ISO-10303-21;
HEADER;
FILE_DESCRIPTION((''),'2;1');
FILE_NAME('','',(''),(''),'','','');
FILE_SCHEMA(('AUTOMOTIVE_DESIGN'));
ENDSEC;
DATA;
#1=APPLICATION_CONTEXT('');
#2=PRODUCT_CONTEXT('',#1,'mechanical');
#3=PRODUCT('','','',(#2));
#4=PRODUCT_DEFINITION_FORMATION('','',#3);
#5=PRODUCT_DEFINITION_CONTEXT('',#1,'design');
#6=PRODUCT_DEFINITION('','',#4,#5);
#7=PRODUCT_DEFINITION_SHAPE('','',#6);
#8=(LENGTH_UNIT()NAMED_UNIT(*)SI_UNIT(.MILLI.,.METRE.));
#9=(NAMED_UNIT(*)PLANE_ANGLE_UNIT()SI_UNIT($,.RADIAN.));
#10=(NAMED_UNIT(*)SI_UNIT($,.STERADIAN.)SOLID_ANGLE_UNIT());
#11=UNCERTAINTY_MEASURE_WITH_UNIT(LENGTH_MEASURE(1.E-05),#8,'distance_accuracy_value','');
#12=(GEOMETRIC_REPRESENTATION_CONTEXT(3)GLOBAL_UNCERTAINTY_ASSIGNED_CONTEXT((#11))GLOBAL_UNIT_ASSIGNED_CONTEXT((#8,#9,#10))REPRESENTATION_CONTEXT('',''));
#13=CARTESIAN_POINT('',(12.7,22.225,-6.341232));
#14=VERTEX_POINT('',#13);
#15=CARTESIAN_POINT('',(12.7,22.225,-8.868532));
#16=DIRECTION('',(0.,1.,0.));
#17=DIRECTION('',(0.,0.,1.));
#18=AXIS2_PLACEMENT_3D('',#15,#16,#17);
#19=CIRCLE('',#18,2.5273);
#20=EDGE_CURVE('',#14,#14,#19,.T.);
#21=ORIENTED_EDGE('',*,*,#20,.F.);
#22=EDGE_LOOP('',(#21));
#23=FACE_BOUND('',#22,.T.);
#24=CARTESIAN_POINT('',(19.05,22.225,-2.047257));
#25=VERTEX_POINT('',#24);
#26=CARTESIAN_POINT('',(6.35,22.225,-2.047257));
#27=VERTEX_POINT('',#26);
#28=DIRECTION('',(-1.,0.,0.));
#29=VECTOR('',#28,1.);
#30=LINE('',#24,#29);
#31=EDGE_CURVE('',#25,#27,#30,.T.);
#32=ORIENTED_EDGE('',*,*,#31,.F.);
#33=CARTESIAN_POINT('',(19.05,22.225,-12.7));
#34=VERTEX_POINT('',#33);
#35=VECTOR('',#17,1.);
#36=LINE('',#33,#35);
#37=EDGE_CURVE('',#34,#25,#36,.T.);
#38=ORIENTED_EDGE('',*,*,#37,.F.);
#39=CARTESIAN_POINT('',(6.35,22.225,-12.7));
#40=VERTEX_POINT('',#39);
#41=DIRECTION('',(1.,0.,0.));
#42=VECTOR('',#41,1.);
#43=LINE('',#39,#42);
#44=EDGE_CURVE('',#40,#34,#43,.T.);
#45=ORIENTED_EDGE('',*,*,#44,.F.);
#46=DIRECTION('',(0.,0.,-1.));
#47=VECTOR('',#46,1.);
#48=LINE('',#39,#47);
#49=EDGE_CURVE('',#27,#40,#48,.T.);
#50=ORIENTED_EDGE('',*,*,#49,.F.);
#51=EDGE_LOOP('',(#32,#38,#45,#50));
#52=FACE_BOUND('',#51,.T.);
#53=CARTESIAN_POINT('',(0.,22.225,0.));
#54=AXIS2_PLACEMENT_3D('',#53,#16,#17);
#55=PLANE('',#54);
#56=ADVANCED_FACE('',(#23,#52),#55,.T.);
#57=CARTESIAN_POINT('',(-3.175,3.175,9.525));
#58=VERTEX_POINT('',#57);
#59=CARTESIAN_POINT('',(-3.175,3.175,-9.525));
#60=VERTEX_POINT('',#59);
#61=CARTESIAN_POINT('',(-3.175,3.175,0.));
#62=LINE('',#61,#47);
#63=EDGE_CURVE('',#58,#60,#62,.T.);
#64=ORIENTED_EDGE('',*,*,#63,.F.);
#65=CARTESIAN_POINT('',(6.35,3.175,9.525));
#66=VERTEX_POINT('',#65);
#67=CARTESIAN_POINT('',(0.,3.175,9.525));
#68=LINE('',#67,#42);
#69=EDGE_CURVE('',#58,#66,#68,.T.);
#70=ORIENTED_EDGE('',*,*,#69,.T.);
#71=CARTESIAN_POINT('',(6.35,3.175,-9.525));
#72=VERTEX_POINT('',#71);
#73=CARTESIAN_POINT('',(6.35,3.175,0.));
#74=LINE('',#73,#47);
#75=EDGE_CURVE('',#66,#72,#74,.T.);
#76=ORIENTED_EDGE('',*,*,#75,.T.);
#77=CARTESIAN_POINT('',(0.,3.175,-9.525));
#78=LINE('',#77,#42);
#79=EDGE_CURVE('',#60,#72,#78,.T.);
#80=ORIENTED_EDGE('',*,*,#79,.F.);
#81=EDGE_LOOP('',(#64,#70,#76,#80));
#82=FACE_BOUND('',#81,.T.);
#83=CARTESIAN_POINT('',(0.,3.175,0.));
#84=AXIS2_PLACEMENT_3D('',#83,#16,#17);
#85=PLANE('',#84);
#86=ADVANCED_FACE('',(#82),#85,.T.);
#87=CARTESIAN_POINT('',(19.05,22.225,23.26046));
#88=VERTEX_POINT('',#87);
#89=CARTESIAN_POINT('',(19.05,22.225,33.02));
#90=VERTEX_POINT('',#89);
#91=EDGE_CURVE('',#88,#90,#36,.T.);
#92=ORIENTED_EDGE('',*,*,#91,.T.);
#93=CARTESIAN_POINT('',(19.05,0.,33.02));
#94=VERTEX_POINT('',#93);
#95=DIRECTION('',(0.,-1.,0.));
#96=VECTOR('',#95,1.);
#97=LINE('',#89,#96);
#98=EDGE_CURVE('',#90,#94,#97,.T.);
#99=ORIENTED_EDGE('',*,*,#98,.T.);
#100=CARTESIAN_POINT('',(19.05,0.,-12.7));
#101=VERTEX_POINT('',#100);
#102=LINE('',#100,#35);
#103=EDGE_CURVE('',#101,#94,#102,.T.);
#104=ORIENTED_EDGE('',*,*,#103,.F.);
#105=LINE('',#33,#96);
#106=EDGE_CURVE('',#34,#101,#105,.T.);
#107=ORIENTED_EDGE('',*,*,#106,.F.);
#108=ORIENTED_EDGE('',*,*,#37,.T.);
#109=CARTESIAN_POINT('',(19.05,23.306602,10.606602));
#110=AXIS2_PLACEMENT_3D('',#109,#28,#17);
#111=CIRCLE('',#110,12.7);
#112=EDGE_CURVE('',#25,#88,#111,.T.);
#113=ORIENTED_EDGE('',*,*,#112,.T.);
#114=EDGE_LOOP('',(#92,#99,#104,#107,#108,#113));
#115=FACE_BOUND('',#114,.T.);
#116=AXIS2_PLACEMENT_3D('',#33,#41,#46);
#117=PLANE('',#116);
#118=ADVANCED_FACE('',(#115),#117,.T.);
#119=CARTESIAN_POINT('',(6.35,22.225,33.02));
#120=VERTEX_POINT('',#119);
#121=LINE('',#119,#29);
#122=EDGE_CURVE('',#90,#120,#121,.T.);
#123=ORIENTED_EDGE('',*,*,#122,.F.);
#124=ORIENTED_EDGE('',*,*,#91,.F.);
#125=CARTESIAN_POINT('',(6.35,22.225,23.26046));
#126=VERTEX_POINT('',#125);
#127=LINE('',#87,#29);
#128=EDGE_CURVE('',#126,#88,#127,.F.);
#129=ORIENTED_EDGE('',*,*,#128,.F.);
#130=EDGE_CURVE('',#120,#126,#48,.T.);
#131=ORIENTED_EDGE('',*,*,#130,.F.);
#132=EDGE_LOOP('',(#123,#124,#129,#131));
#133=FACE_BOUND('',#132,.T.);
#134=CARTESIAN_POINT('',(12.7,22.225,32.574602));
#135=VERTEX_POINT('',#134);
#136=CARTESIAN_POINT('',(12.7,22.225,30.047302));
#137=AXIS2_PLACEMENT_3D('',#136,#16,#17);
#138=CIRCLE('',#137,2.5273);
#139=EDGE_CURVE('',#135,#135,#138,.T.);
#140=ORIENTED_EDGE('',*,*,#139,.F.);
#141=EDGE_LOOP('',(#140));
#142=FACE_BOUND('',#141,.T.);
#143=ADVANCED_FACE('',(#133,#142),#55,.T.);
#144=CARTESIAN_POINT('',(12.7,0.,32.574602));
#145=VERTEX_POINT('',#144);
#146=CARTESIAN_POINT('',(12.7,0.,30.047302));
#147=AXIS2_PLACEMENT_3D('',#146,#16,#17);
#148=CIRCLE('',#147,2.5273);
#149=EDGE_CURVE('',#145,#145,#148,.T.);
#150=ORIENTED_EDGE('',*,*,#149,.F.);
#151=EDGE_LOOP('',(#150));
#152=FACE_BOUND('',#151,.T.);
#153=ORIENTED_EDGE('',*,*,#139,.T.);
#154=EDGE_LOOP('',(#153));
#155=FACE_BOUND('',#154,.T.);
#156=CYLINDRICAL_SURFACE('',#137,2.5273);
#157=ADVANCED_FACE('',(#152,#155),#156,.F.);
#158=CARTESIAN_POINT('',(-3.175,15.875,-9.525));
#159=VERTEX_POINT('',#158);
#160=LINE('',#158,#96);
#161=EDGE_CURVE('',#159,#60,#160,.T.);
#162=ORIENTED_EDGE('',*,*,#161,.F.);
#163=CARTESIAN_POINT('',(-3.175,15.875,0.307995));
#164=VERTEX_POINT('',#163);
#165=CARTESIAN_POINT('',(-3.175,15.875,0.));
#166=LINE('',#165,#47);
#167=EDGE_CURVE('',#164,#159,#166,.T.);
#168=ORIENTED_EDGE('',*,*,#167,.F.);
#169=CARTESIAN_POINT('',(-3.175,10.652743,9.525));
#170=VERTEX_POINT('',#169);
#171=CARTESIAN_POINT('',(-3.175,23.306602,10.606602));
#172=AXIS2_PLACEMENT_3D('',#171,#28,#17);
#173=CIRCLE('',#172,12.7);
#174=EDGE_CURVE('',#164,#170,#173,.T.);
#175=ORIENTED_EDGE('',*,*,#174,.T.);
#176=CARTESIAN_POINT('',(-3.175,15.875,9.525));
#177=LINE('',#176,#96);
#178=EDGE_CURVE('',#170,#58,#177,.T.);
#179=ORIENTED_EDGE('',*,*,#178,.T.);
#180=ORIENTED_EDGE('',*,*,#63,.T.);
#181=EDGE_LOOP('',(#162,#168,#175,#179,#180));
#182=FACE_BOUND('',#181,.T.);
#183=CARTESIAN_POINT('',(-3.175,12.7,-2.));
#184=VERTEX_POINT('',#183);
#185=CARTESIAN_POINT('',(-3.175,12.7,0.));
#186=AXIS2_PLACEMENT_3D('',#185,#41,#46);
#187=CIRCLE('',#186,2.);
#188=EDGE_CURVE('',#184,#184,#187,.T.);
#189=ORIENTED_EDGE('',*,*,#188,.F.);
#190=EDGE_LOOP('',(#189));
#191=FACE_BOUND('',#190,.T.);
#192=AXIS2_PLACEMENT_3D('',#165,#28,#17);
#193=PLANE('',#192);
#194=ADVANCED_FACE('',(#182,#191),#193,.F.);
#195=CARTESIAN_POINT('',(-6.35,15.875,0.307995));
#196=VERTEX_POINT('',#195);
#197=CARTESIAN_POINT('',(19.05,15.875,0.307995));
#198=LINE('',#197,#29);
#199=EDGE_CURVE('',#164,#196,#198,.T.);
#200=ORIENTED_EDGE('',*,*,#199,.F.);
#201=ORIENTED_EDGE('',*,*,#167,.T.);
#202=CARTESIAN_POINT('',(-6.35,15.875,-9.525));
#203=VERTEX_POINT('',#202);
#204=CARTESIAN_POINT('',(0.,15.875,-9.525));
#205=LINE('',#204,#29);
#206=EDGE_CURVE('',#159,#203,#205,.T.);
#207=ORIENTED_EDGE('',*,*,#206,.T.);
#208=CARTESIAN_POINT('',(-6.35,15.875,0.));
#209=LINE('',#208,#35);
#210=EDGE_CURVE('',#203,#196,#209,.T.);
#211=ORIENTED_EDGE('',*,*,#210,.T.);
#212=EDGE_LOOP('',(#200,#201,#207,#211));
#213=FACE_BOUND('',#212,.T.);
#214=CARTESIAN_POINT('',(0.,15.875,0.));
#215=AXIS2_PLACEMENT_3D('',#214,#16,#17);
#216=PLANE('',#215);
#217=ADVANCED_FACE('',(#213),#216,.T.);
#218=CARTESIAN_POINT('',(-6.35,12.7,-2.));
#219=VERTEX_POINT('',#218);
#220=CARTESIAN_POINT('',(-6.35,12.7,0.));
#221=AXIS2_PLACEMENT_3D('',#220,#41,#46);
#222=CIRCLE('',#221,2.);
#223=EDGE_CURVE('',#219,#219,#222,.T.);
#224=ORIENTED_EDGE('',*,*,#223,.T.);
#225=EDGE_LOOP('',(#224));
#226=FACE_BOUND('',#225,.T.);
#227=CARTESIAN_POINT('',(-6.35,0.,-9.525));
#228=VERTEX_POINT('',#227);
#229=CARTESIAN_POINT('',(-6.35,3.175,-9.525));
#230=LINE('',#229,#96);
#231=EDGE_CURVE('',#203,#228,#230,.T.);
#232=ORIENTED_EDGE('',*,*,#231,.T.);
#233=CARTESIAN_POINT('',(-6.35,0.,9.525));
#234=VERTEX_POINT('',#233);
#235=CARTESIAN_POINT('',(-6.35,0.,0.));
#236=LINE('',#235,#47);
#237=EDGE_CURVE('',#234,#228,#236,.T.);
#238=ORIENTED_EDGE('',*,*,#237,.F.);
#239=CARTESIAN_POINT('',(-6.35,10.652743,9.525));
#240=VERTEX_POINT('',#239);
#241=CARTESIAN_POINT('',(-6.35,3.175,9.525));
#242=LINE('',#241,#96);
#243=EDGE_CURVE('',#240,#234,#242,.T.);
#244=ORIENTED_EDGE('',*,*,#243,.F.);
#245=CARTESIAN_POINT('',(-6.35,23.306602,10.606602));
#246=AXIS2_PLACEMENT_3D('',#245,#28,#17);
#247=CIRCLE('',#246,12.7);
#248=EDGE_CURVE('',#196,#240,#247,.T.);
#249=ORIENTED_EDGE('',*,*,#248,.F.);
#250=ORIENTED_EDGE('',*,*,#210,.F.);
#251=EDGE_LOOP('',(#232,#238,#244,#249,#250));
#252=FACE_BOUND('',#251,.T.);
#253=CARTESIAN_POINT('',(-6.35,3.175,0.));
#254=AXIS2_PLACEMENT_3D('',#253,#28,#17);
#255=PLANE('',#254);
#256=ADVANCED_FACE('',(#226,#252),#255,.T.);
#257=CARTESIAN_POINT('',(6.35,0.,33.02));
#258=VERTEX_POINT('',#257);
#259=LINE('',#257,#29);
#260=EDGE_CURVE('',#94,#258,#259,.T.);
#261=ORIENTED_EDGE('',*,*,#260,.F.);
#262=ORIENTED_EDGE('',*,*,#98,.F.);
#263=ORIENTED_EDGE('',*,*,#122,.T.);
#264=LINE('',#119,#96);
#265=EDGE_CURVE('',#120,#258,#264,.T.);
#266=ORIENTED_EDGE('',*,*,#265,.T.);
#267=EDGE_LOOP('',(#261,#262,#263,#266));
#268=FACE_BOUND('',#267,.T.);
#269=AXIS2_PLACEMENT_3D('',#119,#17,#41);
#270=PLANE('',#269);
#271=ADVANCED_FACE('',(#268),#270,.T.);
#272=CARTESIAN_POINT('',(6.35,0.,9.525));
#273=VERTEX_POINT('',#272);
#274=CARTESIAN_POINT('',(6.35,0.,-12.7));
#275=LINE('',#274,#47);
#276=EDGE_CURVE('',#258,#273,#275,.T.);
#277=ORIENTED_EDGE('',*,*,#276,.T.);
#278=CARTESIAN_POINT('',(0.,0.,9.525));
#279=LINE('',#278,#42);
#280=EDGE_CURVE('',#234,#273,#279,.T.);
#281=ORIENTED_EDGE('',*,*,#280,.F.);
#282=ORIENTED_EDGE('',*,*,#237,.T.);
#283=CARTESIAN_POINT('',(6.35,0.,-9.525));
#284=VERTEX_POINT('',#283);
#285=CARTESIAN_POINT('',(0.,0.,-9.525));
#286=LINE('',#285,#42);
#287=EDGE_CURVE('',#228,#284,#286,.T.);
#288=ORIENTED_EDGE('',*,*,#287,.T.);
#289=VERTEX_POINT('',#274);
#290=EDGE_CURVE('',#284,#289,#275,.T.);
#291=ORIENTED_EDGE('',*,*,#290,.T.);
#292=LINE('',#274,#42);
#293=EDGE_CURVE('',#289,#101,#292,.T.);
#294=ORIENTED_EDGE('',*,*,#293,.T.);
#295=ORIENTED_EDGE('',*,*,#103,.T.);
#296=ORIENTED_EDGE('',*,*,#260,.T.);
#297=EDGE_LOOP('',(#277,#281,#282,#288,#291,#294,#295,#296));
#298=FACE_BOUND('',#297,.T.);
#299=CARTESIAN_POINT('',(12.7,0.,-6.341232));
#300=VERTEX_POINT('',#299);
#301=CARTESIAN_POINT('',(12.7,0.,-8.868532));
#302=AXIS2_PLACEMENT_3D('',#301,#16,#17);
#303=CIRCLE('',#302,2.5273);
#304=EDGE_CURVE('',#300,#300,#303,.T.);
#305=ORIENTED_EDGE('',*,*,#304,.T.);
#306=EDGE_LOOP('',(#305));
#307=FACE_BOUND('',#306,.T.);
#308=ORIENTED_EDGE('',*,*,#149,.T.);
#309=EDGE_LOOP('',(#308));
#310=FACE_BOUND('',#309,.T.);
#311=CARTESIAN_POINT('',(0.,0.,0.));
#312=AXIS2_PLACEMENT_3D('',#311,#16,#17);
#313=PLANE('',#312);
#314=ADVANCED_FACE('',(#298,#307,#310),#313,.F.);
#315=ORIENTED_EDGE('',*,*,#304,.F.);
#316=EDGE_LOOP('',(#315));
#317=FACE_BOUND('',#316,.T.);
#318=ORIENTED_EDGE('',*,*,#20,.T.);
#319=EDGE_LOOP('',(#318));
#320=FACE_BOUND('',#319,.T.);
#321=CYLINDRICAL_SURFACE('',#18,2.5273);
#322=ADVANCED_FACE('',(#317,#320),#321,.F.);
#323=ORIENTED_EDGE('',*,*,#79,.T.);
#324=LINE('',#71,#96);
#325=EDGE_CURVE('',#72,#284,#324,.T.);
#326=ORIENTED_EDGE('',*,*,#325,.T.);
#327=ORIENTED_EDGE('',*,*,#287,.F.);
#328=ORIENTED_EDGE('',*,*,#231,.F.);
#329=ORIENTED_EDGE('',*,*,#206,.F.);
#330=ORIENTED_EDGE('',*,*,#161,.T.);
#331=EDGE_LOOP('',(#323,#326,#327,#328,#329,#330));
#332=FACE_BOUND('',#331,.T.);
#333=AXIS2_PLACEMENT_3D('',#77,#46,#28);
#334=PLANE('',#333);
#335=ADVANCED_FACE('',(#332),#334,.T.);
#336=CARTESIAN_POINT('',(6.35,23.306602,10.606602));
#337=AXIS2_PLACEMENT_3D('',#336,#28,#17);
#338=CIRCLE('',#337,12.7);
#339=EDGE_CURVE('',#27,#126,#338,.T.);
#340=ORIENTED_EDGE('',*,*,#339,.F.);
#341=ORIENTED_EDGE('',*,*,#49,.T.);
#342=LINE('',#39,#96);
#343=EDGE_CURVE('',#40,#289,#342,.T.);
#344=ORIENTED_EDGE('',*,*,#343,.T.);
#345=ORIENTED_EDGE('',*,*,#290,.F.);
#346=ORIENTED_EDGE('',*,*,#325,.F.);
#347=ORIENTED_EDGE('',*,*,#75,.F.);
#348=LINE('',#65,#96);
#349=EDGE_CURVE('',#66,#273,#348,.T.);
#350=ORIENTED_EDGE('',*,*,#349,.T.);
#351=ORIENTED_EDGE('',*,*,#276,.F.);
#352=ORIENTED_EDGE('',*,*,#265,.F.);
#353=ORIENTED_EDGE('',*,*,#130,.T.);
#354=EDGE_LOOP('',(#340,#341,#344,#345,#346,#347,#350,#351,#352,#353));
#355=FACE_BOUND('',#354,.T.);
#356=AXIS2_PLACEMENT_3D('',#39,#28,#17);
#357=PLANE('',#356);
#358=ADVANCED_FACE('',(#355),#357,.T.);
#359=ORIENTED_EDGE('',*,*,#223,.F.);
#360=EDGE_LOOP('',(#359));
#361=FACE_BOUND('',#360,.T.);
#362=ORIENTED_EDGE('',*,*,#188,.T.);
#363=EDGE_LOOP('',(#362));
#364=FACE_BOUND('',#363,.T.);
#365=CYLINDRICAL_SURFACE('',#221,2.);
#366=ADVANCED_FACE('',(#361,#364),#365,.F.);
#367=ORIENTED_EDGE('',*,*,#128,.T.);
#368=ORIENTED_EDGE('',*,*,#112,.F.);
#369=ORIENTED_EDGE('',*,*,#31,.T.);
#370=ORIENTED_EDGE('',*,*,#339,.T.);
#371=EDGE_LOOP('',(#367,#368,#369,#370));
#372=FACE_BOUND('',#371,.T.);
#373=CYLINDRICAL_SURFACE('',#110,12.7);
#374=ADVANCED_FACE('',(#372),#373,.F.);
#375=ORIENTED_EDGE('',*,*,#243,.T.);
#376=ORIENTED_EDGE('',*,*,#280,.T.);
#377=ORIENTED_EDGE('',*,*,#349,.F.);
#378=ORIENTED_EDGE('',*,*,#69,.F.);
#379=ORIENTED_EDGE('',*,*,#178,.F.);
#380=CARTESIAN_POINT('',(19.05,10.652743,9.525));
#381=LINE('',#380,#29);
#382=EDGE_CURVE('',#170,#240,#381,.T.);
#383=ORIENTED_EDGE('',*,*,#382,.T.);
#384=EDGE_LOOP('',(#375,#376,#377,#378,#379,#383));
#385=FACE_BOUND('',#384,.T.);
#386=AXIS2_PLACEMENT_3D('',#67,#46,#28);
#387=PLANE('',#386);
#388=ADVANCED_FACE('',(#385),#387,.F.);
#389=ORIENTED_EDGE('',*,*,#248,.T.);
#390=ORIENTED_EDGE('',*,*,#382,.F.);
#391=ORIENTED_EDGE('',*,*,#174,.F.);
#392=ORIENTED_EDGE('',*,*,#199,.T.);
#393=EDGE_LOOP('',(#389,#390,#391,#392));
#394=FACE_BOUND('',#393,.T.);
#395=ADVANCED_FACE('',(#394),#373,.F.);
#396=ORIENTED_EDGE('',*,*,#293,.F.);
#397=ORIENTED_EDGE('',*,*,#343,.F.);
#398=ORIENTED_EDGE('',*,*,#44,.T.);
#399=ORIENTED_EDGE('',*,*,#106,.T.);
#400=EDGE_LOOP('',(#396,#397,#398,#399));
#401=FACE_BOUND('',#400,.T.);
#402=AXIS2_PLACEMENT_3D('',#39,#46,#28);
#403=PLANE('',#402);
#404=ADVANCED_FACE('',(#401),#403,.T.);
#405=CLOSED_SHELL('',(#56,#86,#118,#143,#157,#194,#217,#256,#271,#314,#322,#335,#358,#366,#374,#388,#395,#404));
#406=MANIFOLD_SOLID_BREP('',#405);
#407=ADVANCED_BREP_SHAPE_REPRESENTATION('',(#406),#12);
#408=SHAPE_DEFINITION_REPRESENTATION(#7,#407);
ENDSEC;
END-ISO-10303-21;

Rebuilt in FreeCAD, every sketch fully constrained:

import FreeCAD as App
import Part
import Sketcher

V = App.Vector
Q = App.Units.Quantity


def add_polygon(sketch, points):
    """Adds a closed chain of lines whose ends are joined by coincident constraints."""
    first, n = sketch.GeometryCount, len(points)
    for a, b in zip(points, points[1:] + points[:1]):
        sketch.addGeometry(Part.LineSegment(App.Vector(*a, 0), App.Vector(*b, 0)), False)
    for i in range(n):
        sketch.addConstraint(Sketcher.Constraint("Coincident", first + i, 2, first + (i + 1) % n, 1))

doc = App.newDocument("Part")
params = doc.addObject("Spreadsheet::Sheet", "Params")
for row, (alias, value) in enumerate([
    ("sketch1_width", "0.5 in"),
    ("sketch1_height", "0.75 in"),
    ("pad1_length", "0.125 in"),
    ("sketch2_height", "0.75 in"),
    ("sketch2_width", "0.125 in"),
    ("pad2_length", "0.5 in"),
    ("sketch4_width", "0.5 in"),
    ("sketch4_height", "1.8 in"),
    ("pad3_length", "0.875 in"),
    ("sketch5_diameter", "1 in"),
    ("sketch6_diameter", "0.199 in"),
    ("hole_diameter", "0.199 in"),
    ("hole_depth", "2.42 in"),
], start=1):
    params.set(f"A{row}", alias)
    params.set(f"B{row}", "=" + value)
    params.setAlias(f"B{row}", alias)

body = doc.addObject("PartDesign::Body", "Body")

sketch1 = body.newObject("Sketcher::SketchObject", "Sketch")
sketch1.AttachmentSupport = (doc.getObject("XZ_Plane"), [""])
sketch1.MapMode = "FlatFace"
add_polygon(sketch1, [(6.35, 9.525), (6.35, -9.525), (-6.35, -9.525), (-6.35, 9.525)])
sketch1.addConstraint([
    Sketcher.Constraint("Vertical", 0),
    Sketcher.Constraint("Horizontal", 1),
    Sketcher.Constraint("Vertical", 2),
    Sketcher.Constraint("Horizontal", 3),
    Sketcher.Constraint("Symmetric", 0, 2, 2, 2, -1, 1),
    Sketcher.Constraint("DistanceX", 1, 2, 1, 1, Q("0.5 in")),
    Sketcher.Constraint("DistanceY", 0, 2, 0, 1, Q("0.75 in")),
])
sketch1.setExpression("Constraints[9]", "Params.sketch1_width")
sketch1.setExpression("Constraints[10]", "Params.sketch1_height")
pad1 = body.newObject("PartDesign::Pad", "Pad")
pad1.Profile = sketch1
pad1.setExpression("Length", "Params.pad1_length")
pad1.Reversed = True

sketch2 = body.newObject("Sketcher::SketchObject", "Sketch001")
sketch2.AttachmentSupport = (doc.getObject("XZ_Plane"), [""])
sketch2.MapMode = "FlatFace"
sketch2.AttachmentOffset = App.Placement(V(0, 0, -0.125 * 25.4), App.Rotation())
add_polygon(sketch2, [(-6.35, -9.525), (-6.35, 9.525), (-3.175, 9.525), (-3.175, -9.525)])
sketch2.addConstraint([
    Sketcher.Constraint("Vertical", 0),
    Sketcher.Constraint("Horizontal", 1),
    Sketcher.Constraint("Vertical", 2),
    Sketcher.Constraint("Horizontal", 3),
    Sketcher.Constraint("DistanceY", 0, 1, 0, 2, Q("0.75 in")),
    Sketcher.Constraint("DistanceX", 1, 1, 1, 2, Q("0.125 in")),
    Sketcher.Constraint("DistanceX", 0, 2, -1, 1, Q("0.25 in")),
    Sketcher.Constraint("DistanceY", -1, 1, 0, 2, Q("0.375 in")),
])
sketch2.setExpression("Constraints[8]", "Params.sketch2_height")
sketch2.setExpression("Constraints[9]", "Params.sketch2_width")
pad2 = body.newObject("PartDesign::Pad", "Pad001")
pad2.Profile = sketch2
pad2.setExpression("Length", "Params.pad2_length")
pad2.Reversed = True

sketch3 = body.newObject("Sketcher::SketchObject", "Sketch002")
sketch3.AttachmentSupport = (doc.getObject("YZ_Plane"), [""])
sketch3.MapMode = "FlatFace"
sketch3.AttachmentOffset = App.Placement(V(0, 0, -0.125 * 25.4), App.Rotation())
sketch3.addGeometry(Part.Circle(V(12.7, 0, 0), V(0, 0, 1), 2), False)
sketch3.addConstraint([
    Sketcher.Constraint("PointOnObject", 0, 3, -1),
    Sketcher.Constraint("DistanceX", -1, 1, 0, 3, Q("0.5 in")),
    Sketcher.Constraint("Diameter", 0, 4.0),
])
pocket1 = body.newObject("PartDesign::Pocket", "Pocket")
pocket1.Profile = sketch3
pocket1.Type = "ThroughAll"

sketch4 = body.newObject("Sketcher::SketchObject", "Sketch003")
sketch4.AttachmentSupport = (doc.getObject("XZ_Plane"), [""])
sketch4.MapMode = "FlatFace"
add_polygon(sketch4, [(6.35, 33.02), (6.35, -12.7), (19.05, -12.7), (19.05, 33.02)])
sketch4.addConstraint([
    Sketcher.Constraint("Vertical", 0),
    Sketcher.Constraint("Horizontal", 1),
    Sketcher.Constraint("Vertical", 2),
    Sketcher.Constraint("Horizontal", 3),
    Sketcher.Constraint("DistanceX", 1, 1, 1, 2, Q("0.5 in")),
    Sketcher.Constraint("DistanceY", 0, 2, 0, 1, Q("1.8 in")),
    Sketcher.Constraint("DistanceY", 0, 2, -1, 1, Q("0.5 in")),
    Sketcher.Constraint("DistanceX", -1, 1, 0, 2, Q("0.25 in")),
])
sketch4.setExpression("Constraints[8]", "Params.sketch4_width")
sketch4.setExpression("Constraints[9]", "Params.sketch4_height")
pad3 = body.newObject("PartDesign::Pad", "Pad002")
pad3.Profile = sketch4
pad3.setExpression("Length", "Params.pad3_length")
pad3.Reversed = True

sketch5 = body.newObject("Sketcher::SketchObject", "Sketch004")
sketch5.AttachmentSupport = (doc.getObject("YZ_Plane"), [""])
sketch5.MapMode = "FlatFace"
sketch5.AttachmentOffset = App.Placement(V(0, 0, -0.25 * 25.4), App.Rotation())
sketch5.addGeometry(Part.Circle(V(23.306602, 10.606602, 0), V(0, 0, 1), 12.7), False)
sketch5.addConstraint([
    Sketcher.Constraint("Diameter", 0, Q("1 in")),
    Sketcher.Constraint("DistanceX", -1, 1, 0, 3, 23.306602),
    Sketcher.Constraint("DistanceY", -1, 1, 0, 3, 10.606602),
])
sketch5.setExpression("Constraints[0]", "Params.sketch5_diameter")
pocket2 = body.newObject("PartDesign::Pocket", "Pocket001")
pocket2.Profile = sketch5
pocket2.Type = "ThroughAll"
pocket2.Reversed = True

sketch6 = body.newObject("Sketcher::SketchObject", "Sketch005")
sketch6.AttachmentSupport = (doc.getObject("XZ_Plane"), [""])
sketch6.MapMode = "FlatFace"
sketch6.AttachmentOffset = App.Placement(V(0, 0, -0.875 * 25.4), App.Rotation())
sketch6.addGeometry([
    Part.Circle(V(12.7, -8.868532, 0), V(0, 0, 1), 2.5273),
    Part.Circle(V(12.7, 30.047302, 0), V(0, 0, 1), 2.5273),
], False)
sketch6.addConstraint([
    Sketcher.Constraint("Equal", 0, 1),
    Sketcher.Constraint("Vertical", 0, 3, 1, 3),
    Sketcher.Constraint("Diameter", 0, Q("0.199 in")),
    Sketcher.Constraint("DistanceX", -1, 1, 0, 3, Q("0.5 in")),
    Sketcher.Constraint("DistanceY", 0, 3, -1, 1, 8.868532),
    Sketcher.Constraint("DistanceY", -1, 1, 1, 3, 30.047302),
])
sketch6.setExpression("Constraints[2]", "Params.sketch6_diameter")
doc.recompute()
hole = body.newObject("PartDesign::Hole", "Hole")
hole.Profile = sketch6
hole.ThreadType = "None"
hole.setExpression("Diameter", "Params.hole_diameter")
hole.DepthType = "Dimension"
hole.setExpression("Depth", "Params.hole_depth")
hole.DrillPoint = "Angled"
hole.DrillPointAngle = 118
hole.Reversed = True

doc.recompute()
